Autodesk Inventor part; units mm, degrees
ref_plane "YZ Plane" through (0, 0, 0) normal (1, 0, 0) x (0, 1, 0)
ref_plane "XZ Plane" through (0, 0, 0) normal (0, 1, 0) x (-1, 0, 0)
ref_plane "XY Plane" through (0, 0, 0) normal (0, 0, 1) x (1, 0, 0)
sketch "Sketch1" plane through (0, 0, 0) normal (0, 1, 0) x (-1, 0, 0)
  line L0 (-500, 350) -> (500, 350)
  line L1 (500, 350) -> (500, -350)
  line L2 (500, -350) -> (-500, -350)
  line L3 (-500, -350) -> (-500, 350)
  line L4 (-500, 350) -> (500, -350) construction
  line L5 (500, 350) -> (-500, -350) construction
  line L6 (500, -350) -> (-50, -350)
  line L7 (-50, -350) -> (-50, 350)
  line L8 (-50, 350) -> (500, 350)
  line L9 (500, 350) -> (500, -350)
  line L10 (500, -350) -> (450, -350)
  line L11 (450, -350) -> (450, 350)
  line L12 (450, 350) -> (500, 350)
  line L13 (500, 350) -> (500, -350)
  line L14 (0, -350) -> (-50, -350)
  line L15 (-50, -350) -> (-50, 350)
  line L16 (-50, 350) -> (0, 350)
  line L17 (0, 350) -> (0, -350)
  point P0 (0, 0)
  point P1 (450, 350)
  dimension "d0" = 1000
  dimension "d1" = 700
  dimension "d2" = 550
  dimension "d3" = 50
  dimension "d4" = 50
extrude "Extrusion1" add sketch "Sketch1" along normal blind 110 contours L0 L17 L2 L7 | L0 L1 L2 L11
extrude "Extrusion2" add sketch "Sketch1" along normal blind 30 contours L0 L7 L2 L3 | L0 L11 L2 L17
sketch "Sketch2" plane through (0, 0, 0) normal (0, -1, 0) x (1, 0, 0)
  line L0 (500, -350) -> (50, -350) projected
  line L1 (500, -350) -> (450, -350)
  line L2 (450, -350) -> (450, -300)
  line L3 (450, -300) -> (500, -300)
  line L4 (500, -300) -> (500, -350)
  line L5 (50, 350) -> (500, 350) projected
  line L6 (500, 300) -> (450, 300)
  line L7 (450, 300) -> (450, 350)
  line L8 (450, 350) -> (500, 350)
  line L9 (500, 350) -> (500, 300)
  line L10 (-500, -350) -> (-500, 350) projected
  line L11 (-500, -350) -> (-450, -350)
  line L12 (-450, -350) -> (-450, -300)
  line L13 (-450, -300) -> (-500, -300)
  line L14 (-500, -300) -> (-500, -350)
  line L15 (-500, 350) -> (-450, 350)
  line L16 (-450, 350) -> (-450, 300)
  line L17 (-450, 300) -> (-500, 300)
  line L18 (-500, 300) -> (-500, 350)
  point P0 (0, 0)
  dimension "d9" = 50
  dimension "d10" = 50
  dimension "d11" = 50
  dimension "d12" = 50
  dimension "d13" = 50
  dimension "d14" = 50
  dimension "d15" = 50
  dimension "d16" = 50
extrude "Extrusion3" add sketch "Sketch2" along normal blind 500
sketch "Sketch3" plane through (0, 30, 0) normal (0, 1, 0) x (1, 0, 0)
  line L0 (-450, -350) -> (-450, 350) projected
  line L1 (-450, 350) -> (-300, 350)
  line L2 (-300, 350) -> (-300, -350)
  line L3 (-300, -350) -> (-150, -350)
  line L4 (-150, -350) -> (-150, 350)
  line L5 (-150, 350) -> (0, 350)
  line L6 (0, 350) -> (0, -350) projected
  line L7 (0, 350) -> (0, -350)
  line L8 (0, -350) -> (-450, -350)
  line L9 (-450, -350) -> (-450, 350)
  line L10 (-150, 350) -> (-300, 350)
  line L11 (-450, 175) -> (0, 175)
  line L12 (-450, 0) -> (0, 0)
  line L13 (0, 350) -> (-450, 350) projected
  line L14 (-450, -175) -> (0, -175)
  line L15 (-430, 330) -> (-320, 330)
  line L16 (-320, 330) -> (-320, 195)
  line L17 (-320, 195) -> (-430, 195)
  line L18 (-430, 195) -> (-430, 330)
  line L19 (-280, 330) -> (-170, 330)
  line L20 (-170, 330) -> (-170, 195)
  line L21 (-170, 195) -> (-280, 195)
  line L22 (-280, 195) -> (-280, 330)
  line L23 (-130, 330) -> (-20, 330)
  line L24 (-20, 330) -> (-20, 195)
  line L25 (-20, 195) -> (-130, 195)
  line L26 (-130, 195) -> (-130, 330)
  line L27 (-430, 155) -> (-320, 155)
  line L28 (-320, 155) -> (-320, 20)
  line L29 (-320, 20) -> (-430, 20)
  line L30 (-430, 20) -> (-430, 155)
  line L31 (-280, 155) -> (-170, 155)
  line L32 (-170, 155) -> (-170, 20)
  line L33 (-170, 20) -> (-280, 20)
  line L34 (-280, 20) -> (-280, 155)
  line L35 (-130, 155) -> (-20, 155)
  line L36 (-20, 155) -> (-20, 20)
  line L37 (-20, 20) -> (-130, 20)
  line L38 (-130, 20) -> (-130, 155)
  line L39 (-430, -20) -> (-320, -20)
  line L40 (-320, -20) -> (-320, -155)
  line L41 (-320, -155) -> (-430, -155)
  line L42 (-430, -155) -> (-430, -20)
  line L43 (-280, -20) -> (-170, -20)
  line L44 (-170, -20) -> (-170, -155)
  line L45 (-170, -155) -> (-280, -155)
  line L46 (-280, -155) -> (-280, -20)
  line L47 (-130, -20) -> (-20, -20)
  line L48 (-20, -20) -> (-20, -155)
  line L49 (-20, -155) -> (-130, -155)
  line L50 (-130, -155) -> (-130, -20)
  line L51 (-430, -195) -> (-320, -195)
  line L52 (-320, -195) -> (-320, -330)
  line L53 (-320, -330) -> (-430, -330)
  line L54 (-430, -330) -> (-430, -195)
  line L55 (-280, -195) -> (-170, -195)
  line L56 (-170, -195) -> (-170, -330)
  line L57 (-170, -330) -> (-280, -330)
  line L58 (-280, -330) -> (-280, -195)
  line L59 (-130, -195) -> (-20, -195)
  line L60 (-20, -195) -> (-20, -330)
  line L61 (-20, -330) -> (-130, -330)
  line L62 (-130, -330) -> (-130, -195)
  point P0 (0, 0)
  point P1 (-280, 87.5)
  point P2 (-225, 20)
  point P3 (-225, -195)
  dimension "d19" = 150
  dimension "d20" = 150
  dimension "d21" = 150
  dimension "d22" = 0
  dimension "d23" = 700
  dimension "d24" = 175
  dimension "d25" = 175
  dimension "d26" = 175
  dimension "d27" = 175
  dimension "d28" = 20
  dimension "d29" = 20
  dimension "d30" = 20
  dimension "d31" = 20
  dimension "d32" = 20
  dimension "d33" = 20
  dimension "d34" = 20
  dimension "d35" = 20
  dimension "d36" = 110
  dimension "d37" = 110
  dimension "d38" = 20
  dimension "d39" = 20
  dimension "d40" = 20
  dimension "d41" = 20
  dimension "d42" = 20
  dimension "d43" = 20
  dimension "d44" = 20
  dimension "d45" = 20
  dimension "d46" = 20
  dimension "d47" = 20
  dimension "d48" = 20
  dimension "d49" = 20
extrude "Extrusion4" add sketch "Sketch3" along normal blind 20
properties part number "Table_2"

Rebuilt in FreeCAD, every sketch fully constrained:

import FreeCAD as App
import Part
import Sketcher

V = App.Vector

doc = App.newDocument("Part")
body = doc.addObject("PartDesign::Body", "Body")
body.AllowCompound = True

sketch1 = body.newObject("Sketcher::SketchObject", "Sketch")
sketch1.AttachmentSupport = (doc.getObject("XZ_Plane"), [""])
sketch1.MapMode = "FlatFace"
sketch1.addGeometry([
    Part.LineSegment(V(0, 350, 0), V(50, 350, 0)),
    Part.LineSegment(V(50, 350, 0), V(50, -350, 0)),
    Part.LineSegment(V(50, -350, 0), V(0, -350, 0)),
    Part.LineSegment(V(0, -350, 0), V(0, 350, 0)),
    Part.LineSegment(V(-500, 350, 0), V(-450, 350, 0)),
    Part.LineSegment(V(-450, 350, 0), V(-450, -350, 0)),
    Part.LineSegment(V(-450, -350, 0), V(-500, -350, 0)),
    Part.LineSegment(V(-500, -350, 0), V(-500, 350, 0)),
], False)
sketch1.addConstraint([
    Sketcher.Constraint("Coincident", 0, 2, 1, 1),
    Sketcher.Constraint("Coincident", 1, 2, 2, 1),
    Sketcher.Constraint("Coincident", 2, 2, 3, 1),
    Sketcher.Constraint("Coincident", 3, 2, 0, 1),
    Sketcher.Constraint("Coincident", 4, 2, 5, 1),
    Sketcher.Constraint("Coincident", 5, 2, 6, 1),
    Sketcher.Constraint("Coincident", 6, 2, 7, 1),
    Sketcher.Constraint("Coincident", 7, 2, 4, 1),
    Sketcher.Constraint("Horizontal", 0),
    Sketcher.Constraint("Vertical", 1),
    Sketcher.Constraint("Horizontal", 2),
    Sketcher.Constraint("Vertical", 3),
    Sketcher.Constraint("Horizontal", 4),
    Sketcher.Constraint("Vertical", 5),
    Sketcher.Constraint("Horizontal", 6),
    Sketcher.Constraint("Vertical", 7),
    Sketcher.Constraint("Symmetric", 2, 2, 3, 2, -1, 1),
    Sketcher.Constraint("Horizontal", 3, 2, 4, 2),
    Sketcher.Constraint("Horizontal", 2, 2, 5, 2),
    Sketcher.Constraint("Equal", 2, 4),
    Sketcher.Constraint("DistanceX", 0, 1, 0, 2, 50.0),
    Sketcher.Constraint("DistanceY", 1, 2, 1, 1, 700.0),
    Sketcher.Constraint("DistanceX", 6, 2, 1, 2, 550.0),
])
pad1 = body.newObject("PartDesign::Pad", "Pad")
pad1.Profile = sketch1
pad1.Length = 110
pad1.Reversed = True

sketch2 = body.newObject("Sketcher::SketchObject", "Sketch001")
sketch2.AttachmentSupport = (doc.getObject("XZ_Plane"), [""])
sketch2.MapMode = "FlatFace"
sketch2.addGeometry([
    Part.LineSegment(V(50, 350, 0), V(500, 350, 0)),
    Part.LineSegment(V(500, 350, 0), V(500, -350, 0)),
    Part.LineSegment(V(500, -350, 0), V(50, -350, 0)),
    Part.LineSegment(V(50, -350, 0), V(50, 350, 0)),
    Part.LineSegment(V(-450, 350, 0), V(0, 350, 0)),
    Part.LineSegment(V(0, 350, 0), V(0, -350, 0)),
    Part.LineSegment(V(0, -350, 0), V(-450, -350, 0)),
    Part.LineSegment(V(-450, -350, 0), V(-450, 350, 0)),
], False)
sketch2.addConstraint([
    Sketcher.Constraint("Coincident", 0, 2, 1, 1),
    Sketcher.Constraint("Coincident", 1, 2, 2, 1),
    Sketcher.Constraint("Coincident", 2, 2, 3, 1),
    Sketcher.Constraint("Coincident", 3, 2, 0, 1),
    Sketcher.Constraint("Coincident", 4, 2, 5, 1),
    Sketcher.Constraint("Coincident", 5, 2, 6, 1),
    Sketcher.Constraint("Coincident", 6, 2, 7, 1),
    Sketcher.Constraint("Coincident", 7, 2, 4, 1),
    Sketcher.Constraint("Horizontal", 0),
    Sketcher.Constraint("Vertical", 1),
    Sketcher.Constraint("Horizontal", 2),
    Sketcher.Constraint("Vertical", 3),
    Sketcher.Constraint("Horizontal", 4),
    Sketcher.Constraint("Vertical", 5),
    Sketcher.Constraint("Horizontal", 6),
    Sketcher.Constraint("Vertical", 7),
    Sketcher.Constraint("Symmetric", 4, 2, 5, 2, -1, 1),
    Sketcher.Constraint("Horizontal", 3, 2, 4, 2),
    Sketcher.Constraint("Horizontal", 2, 2, 5, 2),
    Sketcher.Constraint("Equal", 2, 4),
    Sketcher.Constraint("DistanceY", 1, 2, 1, 1, 700.0),
    Sketcher.Constraint("DistanceX", -1, 1, 2, 2, 50.0),
    Sketcher.Constraint("DistanceX", 0, 1, 0, 2, 450.0),
])
pad2 = body.newObject("PartDesign::Pad", "Pad001")
pad2.Profile = sketch2
pad2.Length = 30
pad2.Reversed = True

sketch3 = body.newObject("Sketcher::SketchObject", "Sketch002")
sketch3.AttachmentSupport = (doc.getObject("XZ_Plane"), [""])
sketch3.MapMode = "FlatFace"
sketch3.addGeometry([
    Part.LineSegment(V(450, -350, 0), V(500, -350, 0)),
    Part.LineSegment(V(500, -350, 0), V(500, -300, 0)),
    Part.LineSegment(V(500, -300, 0), V(450, -300, 0)),
    Part.LineSegment(V(450, -300, 0), V(450, -350, 0)),
    Part.LineSegment(V(500, 350, 0), V(450, 350, 0)),
    Part.LineSegment(V(450, 350, 0), V(450, 300, 0)),
    Part.LineSegment(V(450, 300, 0), V(500, 300, 0)),
    Part.LineSegment(V(500, 300, 0), V(500, 350, 0)),
    Part.LineSegment(V(-500, 350, 0), V(-500, 300, 0)),
    Part.LineSegment(V(-500, 300, 0), V(-450, 300, 0)),
    Part.LineSegment(V(-450, 300, 0), V(-450, 350, 0)),
    Part.LineSegment(V(-450, 350, 0), V(-500, 350, 0)),
    Part.LineSegment(V(-500, -300, 0), V(-500, -350, 0)),
    Part.LineSegment(V(-500, -350, 0), V(-450, -350, 0)),
    Part.LineSegment(V(-450, -350, 0), V(-450, -300, 0)),
    Part.LineSegment(V(-450, -300, 0), V(-500, -300, 0)),
], False)
sketch3.addConstraint([
    Sketcher.Constraint("Coincident", 0, 2, 1, 1),
    Sketcher.Constraint("Coincident", 1, 2, 2, 1),
    Sketcher.Constraint("Coincident", 2, 2, 3, 1),
    Sketcher.Constraint("Coincident", 3, 2, 0, 1),
    Sketcher.Constraint("Coincident", 4, 2, 5, 1),
    Sketcher.Constraint("Coincident", 5, 2, 6, 1),
    Sketcher.Constraint("Coincident", 6, 2, 7, 1),
    Sketcher.Constraint("Coincident", 7, 2, 4, 1),
    Sketcher.Constraint("Coincident", 8, 2, 9, 1),
    Sketcher.Constraint("Coincident", 9, 2, 10, 1),
    Sketcher.Constraint("Coincident", 10, 2, 11, 1),
    Sketcher.Constraint("Coincident", 11, 2, 8, 1),
    Sketcher.Constraint("Coincident", 12, 2, 13, 1),
    Sketcher.Constraint("Coincident", 13, 2, 14, 1),
    Sketcher.Constraint("Coincident", 14, 2, 15, 1),
    Sketcher.Constraint("Coincident", 15, 2, 12, 1),
    Sketcher.Constraint("Horizontal", 0),
    Sketcher.Constraint("Vertical", 1),
    Sketcher.Constraint("Horizontal", 2),
    Sketcher.Constraint("Vertical", 3),
    Sketcher.Constraint("Horizontal", 4),
    Sketcher.Constraint("Vertical", 5),
    Sketcher.Constraint("Horizontal", 6),
    Sketcher.Constraint("Vertical", 7),
    Sketcher.Constraint("Vertical", 8),
    Sketcher.Constraint("Horizontal", 9),
    Sketcher.Constraint("Vertical", 10),
    Sketcher.Constraint("Horizontal", 11),
    Sketcher.Constraint("Vertical", 12),
    Sketcher.Constraint("Horizontal", 13),
    Sketcher.Constraint("Vertical", 14),
    Sketcher.Constraint("Horizontal", 15),
    Sketcher.Constraint("Symmetric", 1, 2, 8, 2, -1, 1),
    Sketcher.Constraint("Symmetric", 3, 2, 10, 2, -1, 1),
    Sketcher.Constraint("Symmetric", 7, 2, 12, 2, -1, 1),
    Sketcher.Constraint("Symmetric", 5, 2, 14, 2, -1, 1),
    Sketcher.Constraint("Symmetric", 6, 2, 8, 2, -2),
    Sketcher.Constraint("Symmetric", 4, 2, 10, 2, -2),
    Sketcher.Constraint("Equal", 15, 1),
    Sketcher.Constraint("DistanceX", 0, 1, 0, 2, 50.0),
    Sketcher.Constraint("DistanceX", -1, 1, 0, 2, 500.0),
    Sketcher.Constraint("DistanceY", 0, 2, -1, 1, 350.0),
])
pad3 = body.newObject("PartDesign::Pad", "Pad002")
pad3.Profile = sketch3
pad3.Length = 500

sketch4 = body.newObject("Sketcher::SketchObject", "Sketch003")
sketch4.AttachmentSupport = (doc.getObject("XZ_Plane"), [""])
sketch4.MapMode = "FlatFace"
sketch4.AttachmentOffset = App.Placement(V(0, 0, -30), App.Rotation())
sketch4.addGeometry([
    Part.LineSegment(V(-450, 350, 0), V(0, 350, 0)),
    Part.LineSegment(V(0, 350, 0), V(0, -350, 0)),
    Part.LineSegment(V(0, -350, 0), V(-450, -350, 0)),
    Part.LineSegment(V(-450, -350, 0), V(-450, 350, 0)),
    Part.LineSegment(V(-430, 330, 0), V(-430, 195, 0)),
    Part.LineSegment(V(-430, 195, 0), V(-320, 195, 0)),
    Part.LineSegment(V(-320, 195, 0), V(-320, 330, 0)),
    Part.LineSegment(V(-320, 330, 0), V(-430, 330, 0)),
    Part.LineSegment(V(-430, 20, 0), V(-320, 20, 0)),
    Part.LineSegment(V(-320, 20, 0), V(-320, 155, 0)),
    Part.LineSegment(V(-320, 155, 0), V(-430, 155, 0)),
    Part.LineSegment(V(-430, 155, 0), V(-430, 20, 0)),
    Part.LineSegment(V(-280, 195, 0), V(-170, 195, 0)),
    Part.LineSegment(V(-170, 195, 0), V(-170, 330, 0)),
    Part.LineSegment(V(-170, 330, 0), V(-280, 330, 0)),
    Part.LineSegment(V(-280, 330, 0), V(-280, 195, 0)),
    Part.LineSegment(V(-430, -155, 0), V(-320, -155, 0)),
    Part.LineSegment(V(-320, -155, 0), V(-320, -20, 0)),
    Part.LineSegment(V(-320, -20, 0), V(-430, -20, 0)),
    Part.LineSegment(V(-430, -20, 0), V(-430, -155, 0)),
    Part.LineSegment(V(-280, 20, 0), V(-170, 20, 0)),
    Part.LineSegment(V(-170, 20, 0), V(-170, 155, 0)),
    Part.LineSegment(V(-170, 155, 0), V(-280, 155, 0)),
    Part.LineSegment(V(-280, 155, 0), V(-280, 20, 0)),
    Part.LineSegment(V(-130, 195, 0), V(-20, 195, 0)),
    Part.LineSegment(V(-20, 195, 0), V(-20, 330, 0)),
    Part.LineSegment(V(-20, 330, 0), V(-130, 330, 0)),
    Part.LineSegment(V(-130, 330, 0), V(-130, 195, 0)),
    Part.LineSegment(V(-430, -330, 0), V(-320, -330, 0)),
    Part.LineSegment(V(-320, -330, 0), V(-320, -195, 0)),
    Part.LineSegment(V(-320, -195, 0), V(-430, -195, 0)),
    Part.LineSegment(V(-430, -195, 0), V(-430, -330, 0)),
    Part.LineSegment(V(-280, -155, 0), V(-170, -155, 0)),
    Part.LineSegment(V(-170, -155, 0), V(-170, -20, 0)),
    Part.LineSegment(V(-170, -20, 0), V(-280, -20, 0)),
    Part.LineSegment(V(-280, -20, 0), V(-280, -155, 0)),
    Part.LineSegment(V(-130, 20, 0), V(-20, 20, 0)),
    Part.LineSegment(V(-20, 20, 0), V(-20, 155, 0)),
    Part.LineSegment(V(-20, 155, 0), V(-130, 155, 0)),
    Part.LineSegment(V(-130, 155, 0), V(-130, 20, 0)),
    Part.LineSegment(V(-280, -330, 0), V(-170, -330, 0)),
    Part.LineSegment(V(-170, -330, 0), V(-170, -195, 0)),
    Part.LineSegment(V(-170, -195, 0), V(-280, -195, 0)),
    Part.LineSegment(V(-280, -195, 0), V(-280, -330, 0)),
    Part.LineSegment(V(-130, -155, 0), V(-20, -155, 0)),
    Part.LineSegment(V(-20, -155, 0), V(-20, -20, 0)),
    Part.LineSegment(V(-20, -20, 0), V(-130, -20, 0)),
    Part.LineSegment(V(-130, -20, 0), V(-130, -155, 0)),
    Part.LineSegment(V(-130, -330, 0), V(-20, -330, 0)),
    Part.LineSegment(V(-20, -330, 0), V(-20, -195, 0)),
    Part.LineSegment(V(-20, -195, 0), V(-130, -195, 0)),
    Part.LineSegment(V(-130, -195, 0), V(-130, -330, 0)),
], False)
sketch4.addConstraint([
    Sketcher.Constraint("Coincident", 0, 2, 1, 1),
    Sketcher.Constraint("Coincident", 1, 2, 2, 1),
    Sketcher.Constraint("Coincident", 2, 2, 3, 1),
    Sketcher.Constraint("Coincident", 3, 2, 0, 1),
    Sketcher.Constraint("Coincident", 4, 2, 5, 1),
    Sketcher.Constraint("Coincident", 5, 2, 6, 1),
    Sketcher.Constraint("Coincident", 6, 2, 7, 1),
    Sketcher.Constraint("Coincident", 7, 2, 4, 1),
    Sketcher.Constraint("Coincident", 8, 2, 9, 1),
    Sketcher.Constraint("Coincident", 9, 2, 10, 1),
    Sketcher.Constraint("Coincident", 10, 2, 11, 1),
    Sketcher.Constraint("Coincident", 11, 2, 8, 1),
    Sketcher.Constraint("Coincident", 12, 2, 13, 1),
    Sketcher.Constraint("Coincident", 13, 2, 14, 1),
    Sketcher.Constraint("Coincident", 14, 2, 15, 1),
    Sketcher.Constraint("Coincident", 15, 2, 12, 1),
    Sketcher.Constraint("Coincident", 16, 2, 17, 1),
    Sketcher.Constraint("Coincident", 17, 2, 18, 1),
    Sketcher.Constraint("Coincident", 18, 2, 19, 1),
    Sketcher.Constraint("Coincident", 19, 2, 16, 1),
    Sketcher.Constraint("Coincident", 20, 2, 21, 1),
    Sketcher.Constraint("Coincident", 21, 2, 22, 1),
    Sketcher.Constraint("Coincident", 22, 2, 23, 1),
    Sketcher.Constraint("Coincident", 23, 2, 20, 1),
    Sketcher.Constraint("Coincident", 24, 2, 25, 1),
    Sketcher.Constraint("Coincident", 25, 2, 26, 1),
    Sketcher.Constraint("Coincident", 26, 2, 27, 1),
    Sketcher.Constraint("Coincident", 27, 2, 24, 1),
    Sketcher.Constraint("Coincident", 28, 2, 29, 1),
    Sketcher.Constraint("Coincident", 29, 2, 30, 1),
    Sketcher.Constraint("Coincident", 30, 2, 31, 1),
    Sketcher.Constraint("Coincident", 31, 2, 28, 1),
    Sketcher.Constraint("Coincident", 32, 2, 33, 1),
    Sketcher.Constraint("Coincident", 33, 2, 34, 1),
    Sketcher.Constraint("Coincident", 34, 2, 35, 1),
    Sketcher.Constraint("Coincident", 35, 2, 32, 1),
    Sketcher.Constraint("Coincident", 36, 2, 37, 1),
    Sketcher.Constraint("Coincident", 37, 2, 38, 1),
    Sketcher.Constraint("Coincident", 38, 2, 39, 1),
    Sketcher.Constraint("Coincident", 39, 2, 36, 1),
    Sketcher.Constraint("Coincident", 40, 2, 41, 1),
    Sketcher.Constraint("Coincident", 41, 2, 42, 1),
    Sketcher.Constraint("Coincident", 42, 2, 43, 1),
    Sketcher.Constraint("Coincident", 43, 2, 40, 1),
    Sketcher.Constraint("Coincident", 44, 2, 45, 1),
    Sketcher.Constraint("Coincident", 45, 2, 46, 1),
    Sketcher.Constraint("Coincident", 46, 2, 47, 1),
    Sketcher.Constraint("Coincident", 47, 2, 44, 1),
    Sketcher.Constraint("Coincident", 48, 2, 49, 1),
    Sketcher.Constraint("Coincident", 49, 2, 50, 1),
    Sketcher.Constraint("Coincident", 50, 2, 51, 1),
    Sketcher.Constraint("Coincident", 51, 2, 48, 1),
    Sketcher.Constraint("Horizontal", 0),
    Sketcher.Constraint("Vertical", 1),
    Sketcher.Constraint("Horizontal", 2),
    Sketcher.Constraint("Vertical", 3),
    Sketcher.Constraint("Vertical", 4),
    Sketcher.Constraint("Horizontal", 5),
    Sketcher.Constraint("Vertical", 6),
    Sketcher.Constraint("Horizontal", 7),
    Sketcher.Constraint("Horizontal", 8),
    Sketcher.Constraint("Vertical", 9),
    Sketcher.Constraint("Horizontal", 10),
    Sketcher.Constraint("Vertical", 11),
    Sketcher.Constraint("Horizontal", 12),
    Sketcher.Constraint("Vertical", 13),
    Sketcher.Constraint("Horizontal", 14),
    Sketcher.Constraint("Vertical", 15),
    Sketcher.Constraint("Horizontal", 16),
    Sketcher.Constraint("Vertical", 17),
    Sketcher.Constraint("Horizontal", 18),
    Sketcher.Constraint("Vertical", 19),
    Sketcher.Constraint("Horizontal", 20),
    Sketcher.Constraint("Vertical", 21),
    Sketcher.Constraint("Horizontal", 22),
    Sketcher.Constraint("Vertical", 23),
    Sketcher.Constraint("Horizontal", 24),
    Sketcher.Constraint("Vertical", 25),
    Sketcher.Constraint("Horizontal", 26),
    Sketcher.Constraint("Vertical", 27),
    Sketcher.Constraint("Horizontal", 28),
    Sketcher.Constraint("Vertical", 29),
    Sketcher.Constraint("Horizontal", 30),
    Sketcher.Constraint("Vertical", 31),
    Sketcher.Constraint("Horizontal", 32),
    Sketcher.Constraint("Vertical", 33),
    Sketcher.Constraint("Horizontal", 34),
    Sketcher.Constraint("Vertical", 35),
    Sketcher.Constraint("Horizontal", 36),
    Sketcher.Constraint("Vertical", 37),
    Sketcher.Constraint("Horizontal", 38),
    Sketcher.Constraint("Vertical", 39),
    Sketcher.Constraint("Horizontal", 40),
    Sketcher.Constraint("Vertical", 41),
    Sketcher.Constraint("Horizontal", 42),
    Sketcher.Constraint("Vertical", 43),
    Sketcher.Constraint("Horizontal", 44),
    Sketcher.Constraint("Vertical", 45),
    Sketcher.Constraint("Horizontal", 46),
    Sketcher.Constraint("Vertical", 47),
    Sketcher.Constraint("Horizontal", 48),
    Sketcher.Constraint("Vertical", 49),
    Sketcher.Constraint("Horizontal", 50),
    Sketcher.Constraint("Vertical", 51),
    Sketcher.Constraint("Symmetric", 0, 2, 1, 2, -1, 1),
    Sketcher.Constraint("Symmetric", 9, 2, 16, 2, -1),
    Sketcher.Constraint("Symmetric", 11, 2, 18, 2, -1),
    Sketcher.Constraint("Symmetric", 6, 2, 28, 2, -1),
    Sketcher.Constraint("Symmetric", 4, 2, 30, 2, -1),
    Sketcher.Constraint("Symmetric", 21, 2, 32, 2, -1),
    Sketcher.Constraint("Symmetric", 23, 2, 34, 2, -1),
    Sketcher.Constraint("Symmetric", 13, 2, 40, 2, -1),
    Sketcher.Constraint("Symmetric", 15, 2, 42, 2, -1),
    Sketcher.Constraint("Symmetric", 37, 2, 44, 2, -1),
    Sketcher.Constraint("Symmetric", 39, 2, 46, 2, -1),
    Sketcher.Constraint("Symmetric", 25, 2, 48, 2, -1),
    Sketcher.Constraint("Symmetric", 27, 2, 50, 2, -1),
    Sketcher.Constraint("Horizontal", 5, 2, 12, 2),
    Sketcher.Constraint("Horizontal", 7, 2, 13, 2),
    Sketcher.Constraint("Horizontal", 11, 2, 20, 2),
    Sketcher.Constraint("Horizontal", 10, 2, 21, 2),
    Sketcher.Constraint("Horizontal", 15, 2, 24, 2),
    Sketcher.Constraint("Horizontal", 14, 2, 25, 2),
    Sketcher.Constraint("Horizontal", 23, 2, 36, 2),
    Sketcher.Constraint("Horizontal", 22, 2, 37, 2),
    Sketcher.Constraint("Vertical", 6, 2, 8, 2),
    Sketcher.Constraint("Vertical", 7, 2, 10, 2),
    Sketcher.Constraint("Vertical", 13, 2, 20, 2),
    Sketcher.Constraint("Vertical", 15, 2, 22, 2),
    Sketcher.Constraint("Vertical", 25, 2, 36, 2),
    Sketcher.Constraint("Vertical", 27, 2, 38, 2),
    Sketcher.Constraint("Equal", 10, 12),
    Sketcher.Constraint("Equal", 22, 24),
    Sketcher.Constraint("Equal", 6, 9),
    Sketcher.Constraint("DistanceX", 5, 1, 5, 2, 110.0),
    Sketcher.Constraint("DistanceY", 1, 2, 1, 1, 700.0),
    Sketcher.Constraint("DistanceY", -1, 1, 8, 2, 20.0),
    Sketcher.Constraint("DistanceX", 24, 2, -1, 1, 20.0),
    Sketcher.Constraint("DistanceX", 3, 2, 4, 2, 20.0),
    Sketcher.Constraint("DistanceY", 6, 2, 3, 2, 20.0),
    Sketcher.Constraint("DistanceY", 8, 2, 5, 2, 175.0),
    Sketcher.Constraint("DistanceX", 5, 2, 12, 2, 150.0),
    Sketcher.Constraint("DistanceX", 12, 2, 24, 2, 150.0),
])
pad4 = body.newObject("PartDesign::Pad", "Pad003")
pad4.Profile = sketch4
pad4.Length = 20
pad4.Reversed = True

doc.recompute()
